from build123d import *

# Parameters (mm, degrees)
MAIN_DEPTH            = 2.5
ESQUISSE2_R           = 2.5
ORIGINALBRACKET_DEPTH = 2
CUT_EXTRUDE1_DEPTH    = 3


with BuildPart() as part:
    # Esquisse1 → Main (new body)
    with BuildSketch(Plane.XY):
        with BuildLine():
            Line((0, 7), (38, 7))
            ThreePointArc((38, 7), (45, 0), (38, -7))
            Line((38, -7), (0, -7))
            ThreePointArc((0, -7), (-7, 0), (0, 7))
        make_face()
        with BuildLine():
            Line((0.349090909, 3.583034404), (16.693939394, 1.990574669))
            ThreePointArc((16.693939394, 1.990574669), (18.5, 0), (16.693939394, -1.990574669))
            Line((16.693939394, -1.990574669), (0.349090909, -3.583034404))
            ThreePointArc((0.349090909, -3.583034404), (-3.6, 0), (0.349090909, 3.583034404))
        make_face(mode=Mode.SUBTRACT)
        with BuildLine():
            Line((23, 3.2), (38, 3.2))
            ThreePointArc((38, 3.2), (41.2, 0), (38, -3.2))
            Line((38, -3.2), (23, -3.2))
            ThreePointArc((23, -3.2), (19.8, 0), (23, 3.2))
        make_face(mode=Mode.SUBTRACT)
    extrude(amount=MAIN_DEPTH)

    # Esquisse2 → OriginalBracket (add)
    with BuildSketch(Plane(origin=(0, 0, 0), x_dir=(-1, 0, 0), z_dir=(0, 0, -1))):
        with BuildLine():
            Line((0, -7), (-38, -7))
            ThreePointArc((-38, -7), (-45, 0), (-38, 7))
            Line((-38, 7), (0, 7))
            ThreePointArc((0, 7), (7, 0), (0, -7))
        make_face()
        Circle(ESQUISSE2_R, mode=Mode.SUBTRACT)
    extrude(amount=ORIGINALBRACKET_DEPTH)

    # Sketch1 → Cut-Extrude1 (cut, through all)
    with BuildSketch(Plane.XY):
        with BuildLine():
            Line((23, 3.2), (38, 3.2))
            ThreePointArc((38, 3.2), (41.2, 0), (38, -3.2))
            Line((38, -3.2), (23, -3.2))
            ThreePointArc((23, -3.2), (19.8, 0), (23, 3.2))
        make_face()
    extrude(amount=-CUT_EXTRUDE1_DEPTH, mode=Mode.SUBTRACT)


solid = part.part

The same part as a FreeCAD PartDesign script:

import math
import FreeCAD as App
import Part
import Sketcher
Q = App.Units.Quantity

doc = App.newDocument("Part")
body = doc.addObject("PartDesign::Body", "Body")

# Sketch on XY plane
sketch1 = doc.addObject("Sketcher::SketchObject", "Sketch")
body.addObject(sketch1)
sketch1.AttachmentSupport = (doc.XY_Plane, [""])
sketch1.MapMode = "FlatFace"
sketch1.addGeometry([
    Part.LineSegment(App.Vector(38, 7, 0), App.Vector(0, 7, 0)),  # 0
    Part.ArcOfCircle(Part.Circle(App.Vector(0, 0, 0), App.Vector(0, 0, 1), 7), math.radians(90), math.radians(270)),  # 1
    Part.LineSegment(App.Vector(0, -7, 0), App.Vector(38, -7, 0)),  # 2
    Part.ArcOfCircle(Part.Circle(App.Vector(38, 0, 0), App.Vector(0, 0, 1), 7), math.radians(-90), math.radians(90)),  # 3
    Part.LineSegment(App.Vector(23, 3.2, 0), App.Vector(38, 3.2, 0)),  # 4
    Part.ArcOfCircle(Part.Circle(App.Vector(38, 0, 0), App.Vector(0, 0, 1), 3.2), math.radians(-90), math.radians(90)),  # 5
    Part.LineSegment(App.Vector(38, -3.2, 0), App.Vector(23, -3.2, 0)),  # 6
    Part.ArcOfCircle(Part.Circle(App.Vector(23, 0, 0), App.Vector(0, 0, 1), 3.2), math.radians(90), math.radians(270)),  # 7
    Part.LineSegment(App.Vector(0.3, 3.6, 0), App.Vector(16.7, 2, 0)),  # 8
    Part.ArcOfCircle(Part.Circle(App.Vector(16.5, 0, 0), App.Vector(0, 0, 1), 2), math.radians(-84), math.radians(84)),  # 9
    Part.LineSegment(App.Vector(16.7, -2, 0), App.Vector(0.3, -3.6, 0)),  # 10
    Part.ArcOfCircle(Part.Circle(App.Vector(0, 0, 0), App.Vector(0, 0, 1), 3.6), math.radians(84), math.radians(276)),  # 11
], False)
sketch1.addConstraint([
    Sketcher.Constraint("Tangent", 0, 2, 1, 1),
    Sketcher.Constraint("Tangent", 1, 2, 2, 1),
    Sketcher.Constraint("Tangent", 2, 2, 3, 1),
    Sketcher.Constraint("Tangent", 3, 2, 0, 1),
    Sketcher.Constraint("Tangent", 4, 2, 5, 2),
    Sketcher.Constraint("Tangent", 5, 1, 6, 1),
    Sketcher.Constraint("Tangent", 6, 2, 7, 2),
    Sketcher.Constraint("Tangent", 7, 1, 4, 1),
    Sketcher.Constraint("Tangent", 8, 2, 9, 2),
    Sketcher.Constraint("Tangent", 9, 1, 10, 1),
    Sketcher.Constraint("Tangent", 10, 2, 11, 2),
    Sketcher.Constraint("Tangent", 11, 1, 8, 1),
    Sketcher.Constraint("Horizontal", 0),
    Sketcher.Constraint("Horizontal", 2),
    Sketcher.Constraint("Horizontal", 4),
    Sketcher.Constraint("Horizontal", 6),
    Sketcher.Constraint("Coincident", 1, 3, -1, 1),
    Sketcher.Constraint("Coincident", 11, 3, -1, 1),
    Sketcher.Constraint("Coincident", 5, 3, 3, 3),
    Sketcher.Constraint("PointOnObject", 9, 3, -1),
    Sketcher.Constraint("Radius", 1, Q("7 mm")),
    Sketcher.Constraint("Radius", 9, Q("2 mm")),
    Sketcher.Constraint("Radius", 5, Q("3.2 mm")),
    Sketcher.Constraint("Radius", 11, Q("3.6 mm")),
    Sketcher.Constraint("DistanceX", 0, 2, 0, 1, Q("38 mm")),
    Sketcher.Constraint("DistanceX", 4, 1, 4, 2, Q("15 mm")),
    Sketcher.Constraint("DistanceX", -1, 1, 9, 3, Q("16.5 mm")),
])
pad1 = doc.addObject("PartDesign::Pad", "Pad")
body.addObject(pad1)
pad1.Profile = sketch1
pad1.Length = 2.5

# Sketch on XY plane
sketch2 = doc.addObject("Sketcher::SketchObject", "Sketch001")
body.addObject(sketch2)
sketch2.AttachmentSupport = (doc.XY_Plane, [""])
sketch2.MapMode = "FlatFace"
sketch2.addGeometry([
    Part.LineSegment(App.Vector(38, -7, 0), App.Vector(0, -7, 0)),  # 0
    Part.ArcOfCircle(Part.Circle(App.Vector(0, 0, 0), App.Vector(0, 0, 1), 7), math.radians(90), math.radians(270)),  # 1
    Part.LineSegment(App.Vector(0, 7, 0), App.Vector(38, 7, 0)),  # 2
    Part.ArcOfCircle(Part.Circle(App.Vector(38, 0, 0), App.Vector(0, 0, 1), 7), math.radians(-90), math.radians(90)),  # 3
    Part.Circle(App.Vector(0, 0, 0), App.Vector(0, 0, 1), 2.5),  # 4
], False)
sketch2.addConstraint([
    Sketcher.Constraint("Tangent", 0, 2, 1, 2),
    Sketcher.Constraint("Tangent", 1, 1, 2, 1),
    Sketcher.Constraint("Tangent", 2, 2, 3, 2),
    Sketcher.Constraint("Tangent", 3, 1, 0, 1),
    Sketcher.Constraint("Horizontal", 0),
    Sketcher.Constraint("Horizontal", 2),
    Sketcher.Constraint("Coincident", 1, 3, -1, 1),
    Sketcher.Constraint("Coincident", 4, 3, -1, 1),
    Sketcher.Constraint("Diameter", 4, Q("5 mm")),
    Sketcher.Constraint("Radius", 1, Q("7 mm")),
    Sketcher.Constraint("DistanceX", 0, 2, 0, 1, Q("38 mm")),
])
pad2 = doc.addObject("PartDesign::Pad", "Pad001")
body.addObject(pad2)
pad2.Profile = sketch2
pad2.Length = 2
pad2.Reversed = True

# Sketch on XY plane
sketch3 = doc.addObject("Sketcher::SketchObject", "Sketch002")
body.addObject(sketch3)
sketch3.AttachmentSupport = (doc.XY_Plane, [""])
sketch3.MapMode = "FlatFace"
sketch3.addGeometry([
    Part.LineSegment(App.Vector(38, 3.2, 0), App.Vector(23, 3.2, 0)),
    Part.ArcOfCircle(Part.Circle(App.Vector(23, 0, 0), App.Vector(0, 0, 1), 3.2), math.radians(90), math.radians(270)),
    Part.LineSegment(App.Vector(23, -3.2, 0), App.Vector(38, -3.2, 0)),
    Part.ArcOfCircle(Part.Circle(App.Vector(38, 0, 0), App.Vector(0, 0, 1), 3.2), math.radians(-90), math.radians(90)),
], False)
sketch3.addConstraint([
    Sketcher.Constraint("Tangent", 0, 2, 1, 1),
    Sketcher.Constraint("Tangent", 1, 2, 2, 1),
    Sketcher.Constraint("Tangent", 2, 2, 3, 1),
    Sketcher.Constraint("Tangent", 3, 2, 0, 1),
    Sketcher.Constraint("Horizontal", 0),
    Sketcher.Constraint("Horizontal", 2),
    Sketcher.Constraint("PointOnObject", 1, 3, -1),
    Sketcher.Constraint("Radius", 1, Q("3.2 mm")),
    Sketcher.Constraint("DistanceX", 0, 2, 0, 1, Q("15 mm")),
    Sketcher.Constraint("DistanceX", -1, 1, 1, 3, Q("23 mm")),
])
pocket1 = doc.addObject("PartDesign::Pocket", "Pocket")
body.addObject(pocket1)
pocket1.Profile = sketch3
pocket1.Type = "ThroughAll"

doc.recompute()
